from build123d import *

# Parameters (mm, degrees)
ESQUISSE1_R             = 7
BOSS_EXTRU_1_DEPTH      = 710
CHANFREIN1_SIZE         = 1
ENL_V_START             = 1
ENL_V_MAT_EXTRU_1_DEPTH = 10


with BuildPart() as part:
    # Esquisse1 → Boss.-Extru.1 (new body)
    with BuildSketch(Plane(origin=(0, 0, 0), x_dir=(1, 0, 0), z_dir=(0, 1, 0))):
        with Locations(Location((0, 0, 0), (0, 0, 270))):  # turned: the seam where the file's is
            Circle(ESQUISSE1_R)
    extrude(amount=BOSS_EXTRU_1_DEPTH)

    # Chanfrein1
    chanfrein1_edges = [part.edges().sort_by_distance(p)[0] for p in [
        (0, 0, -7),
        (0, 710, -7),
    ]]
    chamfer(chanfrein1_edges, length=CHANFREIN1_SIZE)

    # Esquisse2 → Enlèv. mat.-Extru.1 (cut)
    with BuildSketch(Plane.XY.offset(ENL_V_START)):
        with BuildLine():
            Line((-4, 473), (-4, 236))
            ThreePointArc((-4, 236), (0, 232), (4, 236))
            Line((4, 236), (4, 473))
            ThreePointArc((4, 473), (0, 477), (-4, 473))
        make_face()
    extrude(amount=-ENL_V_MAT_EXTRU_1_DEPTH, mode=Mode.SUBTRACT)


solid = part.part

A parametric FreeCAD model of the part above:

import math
import FreeCAD as App
import Part
import Sketcher


def edges_at(feature, points):
    """Names of the edges that pass closest to the given points."""
    edges = feature.Shape.Edges
    near = lambda p: min(range(len(edges)), key=lambda i: edges[i].distToShape(Part.Vertex(*p))[0])
    return sorted({f"Edge{near(p) + 1}" for p in points})

doc = App.newDocument("Part")
body = doc.addObject("PartDesign::Body", "Body")

# Sketch on XZ plane
sketch1 = body.newObject("Sketcher::SketchObject", "Sketch")
sketch1.AttachmentSupport = (doc.getObject("XZ_Plane"), [""])
sketch1.MapMode = "FlatFace"
sketch1.addGeometry(Part.Circle(App.Vector(0, 0, 0), App.Vector(0, 0, 1), 7), False)
sketch1.addConstraint([
    Sketcher.Constraint("Coincident", 0, 3, -1, 1),
    Sketcher.Constraint("Diameter", 0, 14.0),
])
pad1 = body.newObject("PartDesign::Pad", "Pad")
pad1.Profile = sketch1
pad1.Length = 710
pad1.Reversed = True
doc.recompute()

chamfer = body.newObject("PartDesign::Chamfer", "Chamfer")
chamfer.Base = (pad1, edges_at(pad1, [(0, 0, -7), (0, 710, -7)]))
chamfer.Size = 1

# Sketch on XY plane
sketch2 = body.newObject("Sketcher::SketchObject", "Sketch001")
sketch2.AttachmentSupport = (doc.getObject("XY_Plane"), [""])
sketch2.MapMode = "FlatFace"
sketch2.AttachmentOffset = App.Placement(App.Vector(0, 0, 1), App.Rotation())
sketch2.addGeometry([
    Part.LineSegment(App.Vector(-4, 473, 0), App.Vector(-4, 236, 0)),
    Part.ArcOfCircle(Part.Circle(App.Vector(0, 236, 0), App.Vector(0, 0, 1), 4), math.radians(180), math.radians(360)),
    Part.LineSegment(App.Vector(4, 236, 0), App.Vector(4, 473, 0)),
    Part.ArcOfCircle(Part.Circle(App.Vector(0, 473, 0), App.Vector(0, 0, 1), 4), math.radians(0), math.radians(180)),
], False)
sketch2.addConstraint([
    Sketcher.Constraint("Tangent", 0, 2, 1, 1),
    Sketcher.Constraint("Tangent", 1, 2, 2, 1),
    Sketcher.Constraint("Tangent", 2, 2, 3, 1),
    Sketcher.Constraint("Tangent", 3, 2, 0, 1),
    Sketcher.Constraint("Vertical", 0),
    Sketcher.Constraint("Vertical", 2),
    Sketcher.Constraint("PointOnObject", 1, 3, -2),
    Sketcher.Constraint("Radius", 1, 4.0),
    Sketcher.Constraint("DistanceY", 0, 2, 0, 1, 237.0),
    Sketcher.Constraint("DistanceY", -1, 1, 1, 3, 236.0),
])
pocket1 = body.newObject("PartDesign::Pocket", "Pocket")
pocket1.Profile = sketch2
pocket1.Length = 10

doc.recompute()
